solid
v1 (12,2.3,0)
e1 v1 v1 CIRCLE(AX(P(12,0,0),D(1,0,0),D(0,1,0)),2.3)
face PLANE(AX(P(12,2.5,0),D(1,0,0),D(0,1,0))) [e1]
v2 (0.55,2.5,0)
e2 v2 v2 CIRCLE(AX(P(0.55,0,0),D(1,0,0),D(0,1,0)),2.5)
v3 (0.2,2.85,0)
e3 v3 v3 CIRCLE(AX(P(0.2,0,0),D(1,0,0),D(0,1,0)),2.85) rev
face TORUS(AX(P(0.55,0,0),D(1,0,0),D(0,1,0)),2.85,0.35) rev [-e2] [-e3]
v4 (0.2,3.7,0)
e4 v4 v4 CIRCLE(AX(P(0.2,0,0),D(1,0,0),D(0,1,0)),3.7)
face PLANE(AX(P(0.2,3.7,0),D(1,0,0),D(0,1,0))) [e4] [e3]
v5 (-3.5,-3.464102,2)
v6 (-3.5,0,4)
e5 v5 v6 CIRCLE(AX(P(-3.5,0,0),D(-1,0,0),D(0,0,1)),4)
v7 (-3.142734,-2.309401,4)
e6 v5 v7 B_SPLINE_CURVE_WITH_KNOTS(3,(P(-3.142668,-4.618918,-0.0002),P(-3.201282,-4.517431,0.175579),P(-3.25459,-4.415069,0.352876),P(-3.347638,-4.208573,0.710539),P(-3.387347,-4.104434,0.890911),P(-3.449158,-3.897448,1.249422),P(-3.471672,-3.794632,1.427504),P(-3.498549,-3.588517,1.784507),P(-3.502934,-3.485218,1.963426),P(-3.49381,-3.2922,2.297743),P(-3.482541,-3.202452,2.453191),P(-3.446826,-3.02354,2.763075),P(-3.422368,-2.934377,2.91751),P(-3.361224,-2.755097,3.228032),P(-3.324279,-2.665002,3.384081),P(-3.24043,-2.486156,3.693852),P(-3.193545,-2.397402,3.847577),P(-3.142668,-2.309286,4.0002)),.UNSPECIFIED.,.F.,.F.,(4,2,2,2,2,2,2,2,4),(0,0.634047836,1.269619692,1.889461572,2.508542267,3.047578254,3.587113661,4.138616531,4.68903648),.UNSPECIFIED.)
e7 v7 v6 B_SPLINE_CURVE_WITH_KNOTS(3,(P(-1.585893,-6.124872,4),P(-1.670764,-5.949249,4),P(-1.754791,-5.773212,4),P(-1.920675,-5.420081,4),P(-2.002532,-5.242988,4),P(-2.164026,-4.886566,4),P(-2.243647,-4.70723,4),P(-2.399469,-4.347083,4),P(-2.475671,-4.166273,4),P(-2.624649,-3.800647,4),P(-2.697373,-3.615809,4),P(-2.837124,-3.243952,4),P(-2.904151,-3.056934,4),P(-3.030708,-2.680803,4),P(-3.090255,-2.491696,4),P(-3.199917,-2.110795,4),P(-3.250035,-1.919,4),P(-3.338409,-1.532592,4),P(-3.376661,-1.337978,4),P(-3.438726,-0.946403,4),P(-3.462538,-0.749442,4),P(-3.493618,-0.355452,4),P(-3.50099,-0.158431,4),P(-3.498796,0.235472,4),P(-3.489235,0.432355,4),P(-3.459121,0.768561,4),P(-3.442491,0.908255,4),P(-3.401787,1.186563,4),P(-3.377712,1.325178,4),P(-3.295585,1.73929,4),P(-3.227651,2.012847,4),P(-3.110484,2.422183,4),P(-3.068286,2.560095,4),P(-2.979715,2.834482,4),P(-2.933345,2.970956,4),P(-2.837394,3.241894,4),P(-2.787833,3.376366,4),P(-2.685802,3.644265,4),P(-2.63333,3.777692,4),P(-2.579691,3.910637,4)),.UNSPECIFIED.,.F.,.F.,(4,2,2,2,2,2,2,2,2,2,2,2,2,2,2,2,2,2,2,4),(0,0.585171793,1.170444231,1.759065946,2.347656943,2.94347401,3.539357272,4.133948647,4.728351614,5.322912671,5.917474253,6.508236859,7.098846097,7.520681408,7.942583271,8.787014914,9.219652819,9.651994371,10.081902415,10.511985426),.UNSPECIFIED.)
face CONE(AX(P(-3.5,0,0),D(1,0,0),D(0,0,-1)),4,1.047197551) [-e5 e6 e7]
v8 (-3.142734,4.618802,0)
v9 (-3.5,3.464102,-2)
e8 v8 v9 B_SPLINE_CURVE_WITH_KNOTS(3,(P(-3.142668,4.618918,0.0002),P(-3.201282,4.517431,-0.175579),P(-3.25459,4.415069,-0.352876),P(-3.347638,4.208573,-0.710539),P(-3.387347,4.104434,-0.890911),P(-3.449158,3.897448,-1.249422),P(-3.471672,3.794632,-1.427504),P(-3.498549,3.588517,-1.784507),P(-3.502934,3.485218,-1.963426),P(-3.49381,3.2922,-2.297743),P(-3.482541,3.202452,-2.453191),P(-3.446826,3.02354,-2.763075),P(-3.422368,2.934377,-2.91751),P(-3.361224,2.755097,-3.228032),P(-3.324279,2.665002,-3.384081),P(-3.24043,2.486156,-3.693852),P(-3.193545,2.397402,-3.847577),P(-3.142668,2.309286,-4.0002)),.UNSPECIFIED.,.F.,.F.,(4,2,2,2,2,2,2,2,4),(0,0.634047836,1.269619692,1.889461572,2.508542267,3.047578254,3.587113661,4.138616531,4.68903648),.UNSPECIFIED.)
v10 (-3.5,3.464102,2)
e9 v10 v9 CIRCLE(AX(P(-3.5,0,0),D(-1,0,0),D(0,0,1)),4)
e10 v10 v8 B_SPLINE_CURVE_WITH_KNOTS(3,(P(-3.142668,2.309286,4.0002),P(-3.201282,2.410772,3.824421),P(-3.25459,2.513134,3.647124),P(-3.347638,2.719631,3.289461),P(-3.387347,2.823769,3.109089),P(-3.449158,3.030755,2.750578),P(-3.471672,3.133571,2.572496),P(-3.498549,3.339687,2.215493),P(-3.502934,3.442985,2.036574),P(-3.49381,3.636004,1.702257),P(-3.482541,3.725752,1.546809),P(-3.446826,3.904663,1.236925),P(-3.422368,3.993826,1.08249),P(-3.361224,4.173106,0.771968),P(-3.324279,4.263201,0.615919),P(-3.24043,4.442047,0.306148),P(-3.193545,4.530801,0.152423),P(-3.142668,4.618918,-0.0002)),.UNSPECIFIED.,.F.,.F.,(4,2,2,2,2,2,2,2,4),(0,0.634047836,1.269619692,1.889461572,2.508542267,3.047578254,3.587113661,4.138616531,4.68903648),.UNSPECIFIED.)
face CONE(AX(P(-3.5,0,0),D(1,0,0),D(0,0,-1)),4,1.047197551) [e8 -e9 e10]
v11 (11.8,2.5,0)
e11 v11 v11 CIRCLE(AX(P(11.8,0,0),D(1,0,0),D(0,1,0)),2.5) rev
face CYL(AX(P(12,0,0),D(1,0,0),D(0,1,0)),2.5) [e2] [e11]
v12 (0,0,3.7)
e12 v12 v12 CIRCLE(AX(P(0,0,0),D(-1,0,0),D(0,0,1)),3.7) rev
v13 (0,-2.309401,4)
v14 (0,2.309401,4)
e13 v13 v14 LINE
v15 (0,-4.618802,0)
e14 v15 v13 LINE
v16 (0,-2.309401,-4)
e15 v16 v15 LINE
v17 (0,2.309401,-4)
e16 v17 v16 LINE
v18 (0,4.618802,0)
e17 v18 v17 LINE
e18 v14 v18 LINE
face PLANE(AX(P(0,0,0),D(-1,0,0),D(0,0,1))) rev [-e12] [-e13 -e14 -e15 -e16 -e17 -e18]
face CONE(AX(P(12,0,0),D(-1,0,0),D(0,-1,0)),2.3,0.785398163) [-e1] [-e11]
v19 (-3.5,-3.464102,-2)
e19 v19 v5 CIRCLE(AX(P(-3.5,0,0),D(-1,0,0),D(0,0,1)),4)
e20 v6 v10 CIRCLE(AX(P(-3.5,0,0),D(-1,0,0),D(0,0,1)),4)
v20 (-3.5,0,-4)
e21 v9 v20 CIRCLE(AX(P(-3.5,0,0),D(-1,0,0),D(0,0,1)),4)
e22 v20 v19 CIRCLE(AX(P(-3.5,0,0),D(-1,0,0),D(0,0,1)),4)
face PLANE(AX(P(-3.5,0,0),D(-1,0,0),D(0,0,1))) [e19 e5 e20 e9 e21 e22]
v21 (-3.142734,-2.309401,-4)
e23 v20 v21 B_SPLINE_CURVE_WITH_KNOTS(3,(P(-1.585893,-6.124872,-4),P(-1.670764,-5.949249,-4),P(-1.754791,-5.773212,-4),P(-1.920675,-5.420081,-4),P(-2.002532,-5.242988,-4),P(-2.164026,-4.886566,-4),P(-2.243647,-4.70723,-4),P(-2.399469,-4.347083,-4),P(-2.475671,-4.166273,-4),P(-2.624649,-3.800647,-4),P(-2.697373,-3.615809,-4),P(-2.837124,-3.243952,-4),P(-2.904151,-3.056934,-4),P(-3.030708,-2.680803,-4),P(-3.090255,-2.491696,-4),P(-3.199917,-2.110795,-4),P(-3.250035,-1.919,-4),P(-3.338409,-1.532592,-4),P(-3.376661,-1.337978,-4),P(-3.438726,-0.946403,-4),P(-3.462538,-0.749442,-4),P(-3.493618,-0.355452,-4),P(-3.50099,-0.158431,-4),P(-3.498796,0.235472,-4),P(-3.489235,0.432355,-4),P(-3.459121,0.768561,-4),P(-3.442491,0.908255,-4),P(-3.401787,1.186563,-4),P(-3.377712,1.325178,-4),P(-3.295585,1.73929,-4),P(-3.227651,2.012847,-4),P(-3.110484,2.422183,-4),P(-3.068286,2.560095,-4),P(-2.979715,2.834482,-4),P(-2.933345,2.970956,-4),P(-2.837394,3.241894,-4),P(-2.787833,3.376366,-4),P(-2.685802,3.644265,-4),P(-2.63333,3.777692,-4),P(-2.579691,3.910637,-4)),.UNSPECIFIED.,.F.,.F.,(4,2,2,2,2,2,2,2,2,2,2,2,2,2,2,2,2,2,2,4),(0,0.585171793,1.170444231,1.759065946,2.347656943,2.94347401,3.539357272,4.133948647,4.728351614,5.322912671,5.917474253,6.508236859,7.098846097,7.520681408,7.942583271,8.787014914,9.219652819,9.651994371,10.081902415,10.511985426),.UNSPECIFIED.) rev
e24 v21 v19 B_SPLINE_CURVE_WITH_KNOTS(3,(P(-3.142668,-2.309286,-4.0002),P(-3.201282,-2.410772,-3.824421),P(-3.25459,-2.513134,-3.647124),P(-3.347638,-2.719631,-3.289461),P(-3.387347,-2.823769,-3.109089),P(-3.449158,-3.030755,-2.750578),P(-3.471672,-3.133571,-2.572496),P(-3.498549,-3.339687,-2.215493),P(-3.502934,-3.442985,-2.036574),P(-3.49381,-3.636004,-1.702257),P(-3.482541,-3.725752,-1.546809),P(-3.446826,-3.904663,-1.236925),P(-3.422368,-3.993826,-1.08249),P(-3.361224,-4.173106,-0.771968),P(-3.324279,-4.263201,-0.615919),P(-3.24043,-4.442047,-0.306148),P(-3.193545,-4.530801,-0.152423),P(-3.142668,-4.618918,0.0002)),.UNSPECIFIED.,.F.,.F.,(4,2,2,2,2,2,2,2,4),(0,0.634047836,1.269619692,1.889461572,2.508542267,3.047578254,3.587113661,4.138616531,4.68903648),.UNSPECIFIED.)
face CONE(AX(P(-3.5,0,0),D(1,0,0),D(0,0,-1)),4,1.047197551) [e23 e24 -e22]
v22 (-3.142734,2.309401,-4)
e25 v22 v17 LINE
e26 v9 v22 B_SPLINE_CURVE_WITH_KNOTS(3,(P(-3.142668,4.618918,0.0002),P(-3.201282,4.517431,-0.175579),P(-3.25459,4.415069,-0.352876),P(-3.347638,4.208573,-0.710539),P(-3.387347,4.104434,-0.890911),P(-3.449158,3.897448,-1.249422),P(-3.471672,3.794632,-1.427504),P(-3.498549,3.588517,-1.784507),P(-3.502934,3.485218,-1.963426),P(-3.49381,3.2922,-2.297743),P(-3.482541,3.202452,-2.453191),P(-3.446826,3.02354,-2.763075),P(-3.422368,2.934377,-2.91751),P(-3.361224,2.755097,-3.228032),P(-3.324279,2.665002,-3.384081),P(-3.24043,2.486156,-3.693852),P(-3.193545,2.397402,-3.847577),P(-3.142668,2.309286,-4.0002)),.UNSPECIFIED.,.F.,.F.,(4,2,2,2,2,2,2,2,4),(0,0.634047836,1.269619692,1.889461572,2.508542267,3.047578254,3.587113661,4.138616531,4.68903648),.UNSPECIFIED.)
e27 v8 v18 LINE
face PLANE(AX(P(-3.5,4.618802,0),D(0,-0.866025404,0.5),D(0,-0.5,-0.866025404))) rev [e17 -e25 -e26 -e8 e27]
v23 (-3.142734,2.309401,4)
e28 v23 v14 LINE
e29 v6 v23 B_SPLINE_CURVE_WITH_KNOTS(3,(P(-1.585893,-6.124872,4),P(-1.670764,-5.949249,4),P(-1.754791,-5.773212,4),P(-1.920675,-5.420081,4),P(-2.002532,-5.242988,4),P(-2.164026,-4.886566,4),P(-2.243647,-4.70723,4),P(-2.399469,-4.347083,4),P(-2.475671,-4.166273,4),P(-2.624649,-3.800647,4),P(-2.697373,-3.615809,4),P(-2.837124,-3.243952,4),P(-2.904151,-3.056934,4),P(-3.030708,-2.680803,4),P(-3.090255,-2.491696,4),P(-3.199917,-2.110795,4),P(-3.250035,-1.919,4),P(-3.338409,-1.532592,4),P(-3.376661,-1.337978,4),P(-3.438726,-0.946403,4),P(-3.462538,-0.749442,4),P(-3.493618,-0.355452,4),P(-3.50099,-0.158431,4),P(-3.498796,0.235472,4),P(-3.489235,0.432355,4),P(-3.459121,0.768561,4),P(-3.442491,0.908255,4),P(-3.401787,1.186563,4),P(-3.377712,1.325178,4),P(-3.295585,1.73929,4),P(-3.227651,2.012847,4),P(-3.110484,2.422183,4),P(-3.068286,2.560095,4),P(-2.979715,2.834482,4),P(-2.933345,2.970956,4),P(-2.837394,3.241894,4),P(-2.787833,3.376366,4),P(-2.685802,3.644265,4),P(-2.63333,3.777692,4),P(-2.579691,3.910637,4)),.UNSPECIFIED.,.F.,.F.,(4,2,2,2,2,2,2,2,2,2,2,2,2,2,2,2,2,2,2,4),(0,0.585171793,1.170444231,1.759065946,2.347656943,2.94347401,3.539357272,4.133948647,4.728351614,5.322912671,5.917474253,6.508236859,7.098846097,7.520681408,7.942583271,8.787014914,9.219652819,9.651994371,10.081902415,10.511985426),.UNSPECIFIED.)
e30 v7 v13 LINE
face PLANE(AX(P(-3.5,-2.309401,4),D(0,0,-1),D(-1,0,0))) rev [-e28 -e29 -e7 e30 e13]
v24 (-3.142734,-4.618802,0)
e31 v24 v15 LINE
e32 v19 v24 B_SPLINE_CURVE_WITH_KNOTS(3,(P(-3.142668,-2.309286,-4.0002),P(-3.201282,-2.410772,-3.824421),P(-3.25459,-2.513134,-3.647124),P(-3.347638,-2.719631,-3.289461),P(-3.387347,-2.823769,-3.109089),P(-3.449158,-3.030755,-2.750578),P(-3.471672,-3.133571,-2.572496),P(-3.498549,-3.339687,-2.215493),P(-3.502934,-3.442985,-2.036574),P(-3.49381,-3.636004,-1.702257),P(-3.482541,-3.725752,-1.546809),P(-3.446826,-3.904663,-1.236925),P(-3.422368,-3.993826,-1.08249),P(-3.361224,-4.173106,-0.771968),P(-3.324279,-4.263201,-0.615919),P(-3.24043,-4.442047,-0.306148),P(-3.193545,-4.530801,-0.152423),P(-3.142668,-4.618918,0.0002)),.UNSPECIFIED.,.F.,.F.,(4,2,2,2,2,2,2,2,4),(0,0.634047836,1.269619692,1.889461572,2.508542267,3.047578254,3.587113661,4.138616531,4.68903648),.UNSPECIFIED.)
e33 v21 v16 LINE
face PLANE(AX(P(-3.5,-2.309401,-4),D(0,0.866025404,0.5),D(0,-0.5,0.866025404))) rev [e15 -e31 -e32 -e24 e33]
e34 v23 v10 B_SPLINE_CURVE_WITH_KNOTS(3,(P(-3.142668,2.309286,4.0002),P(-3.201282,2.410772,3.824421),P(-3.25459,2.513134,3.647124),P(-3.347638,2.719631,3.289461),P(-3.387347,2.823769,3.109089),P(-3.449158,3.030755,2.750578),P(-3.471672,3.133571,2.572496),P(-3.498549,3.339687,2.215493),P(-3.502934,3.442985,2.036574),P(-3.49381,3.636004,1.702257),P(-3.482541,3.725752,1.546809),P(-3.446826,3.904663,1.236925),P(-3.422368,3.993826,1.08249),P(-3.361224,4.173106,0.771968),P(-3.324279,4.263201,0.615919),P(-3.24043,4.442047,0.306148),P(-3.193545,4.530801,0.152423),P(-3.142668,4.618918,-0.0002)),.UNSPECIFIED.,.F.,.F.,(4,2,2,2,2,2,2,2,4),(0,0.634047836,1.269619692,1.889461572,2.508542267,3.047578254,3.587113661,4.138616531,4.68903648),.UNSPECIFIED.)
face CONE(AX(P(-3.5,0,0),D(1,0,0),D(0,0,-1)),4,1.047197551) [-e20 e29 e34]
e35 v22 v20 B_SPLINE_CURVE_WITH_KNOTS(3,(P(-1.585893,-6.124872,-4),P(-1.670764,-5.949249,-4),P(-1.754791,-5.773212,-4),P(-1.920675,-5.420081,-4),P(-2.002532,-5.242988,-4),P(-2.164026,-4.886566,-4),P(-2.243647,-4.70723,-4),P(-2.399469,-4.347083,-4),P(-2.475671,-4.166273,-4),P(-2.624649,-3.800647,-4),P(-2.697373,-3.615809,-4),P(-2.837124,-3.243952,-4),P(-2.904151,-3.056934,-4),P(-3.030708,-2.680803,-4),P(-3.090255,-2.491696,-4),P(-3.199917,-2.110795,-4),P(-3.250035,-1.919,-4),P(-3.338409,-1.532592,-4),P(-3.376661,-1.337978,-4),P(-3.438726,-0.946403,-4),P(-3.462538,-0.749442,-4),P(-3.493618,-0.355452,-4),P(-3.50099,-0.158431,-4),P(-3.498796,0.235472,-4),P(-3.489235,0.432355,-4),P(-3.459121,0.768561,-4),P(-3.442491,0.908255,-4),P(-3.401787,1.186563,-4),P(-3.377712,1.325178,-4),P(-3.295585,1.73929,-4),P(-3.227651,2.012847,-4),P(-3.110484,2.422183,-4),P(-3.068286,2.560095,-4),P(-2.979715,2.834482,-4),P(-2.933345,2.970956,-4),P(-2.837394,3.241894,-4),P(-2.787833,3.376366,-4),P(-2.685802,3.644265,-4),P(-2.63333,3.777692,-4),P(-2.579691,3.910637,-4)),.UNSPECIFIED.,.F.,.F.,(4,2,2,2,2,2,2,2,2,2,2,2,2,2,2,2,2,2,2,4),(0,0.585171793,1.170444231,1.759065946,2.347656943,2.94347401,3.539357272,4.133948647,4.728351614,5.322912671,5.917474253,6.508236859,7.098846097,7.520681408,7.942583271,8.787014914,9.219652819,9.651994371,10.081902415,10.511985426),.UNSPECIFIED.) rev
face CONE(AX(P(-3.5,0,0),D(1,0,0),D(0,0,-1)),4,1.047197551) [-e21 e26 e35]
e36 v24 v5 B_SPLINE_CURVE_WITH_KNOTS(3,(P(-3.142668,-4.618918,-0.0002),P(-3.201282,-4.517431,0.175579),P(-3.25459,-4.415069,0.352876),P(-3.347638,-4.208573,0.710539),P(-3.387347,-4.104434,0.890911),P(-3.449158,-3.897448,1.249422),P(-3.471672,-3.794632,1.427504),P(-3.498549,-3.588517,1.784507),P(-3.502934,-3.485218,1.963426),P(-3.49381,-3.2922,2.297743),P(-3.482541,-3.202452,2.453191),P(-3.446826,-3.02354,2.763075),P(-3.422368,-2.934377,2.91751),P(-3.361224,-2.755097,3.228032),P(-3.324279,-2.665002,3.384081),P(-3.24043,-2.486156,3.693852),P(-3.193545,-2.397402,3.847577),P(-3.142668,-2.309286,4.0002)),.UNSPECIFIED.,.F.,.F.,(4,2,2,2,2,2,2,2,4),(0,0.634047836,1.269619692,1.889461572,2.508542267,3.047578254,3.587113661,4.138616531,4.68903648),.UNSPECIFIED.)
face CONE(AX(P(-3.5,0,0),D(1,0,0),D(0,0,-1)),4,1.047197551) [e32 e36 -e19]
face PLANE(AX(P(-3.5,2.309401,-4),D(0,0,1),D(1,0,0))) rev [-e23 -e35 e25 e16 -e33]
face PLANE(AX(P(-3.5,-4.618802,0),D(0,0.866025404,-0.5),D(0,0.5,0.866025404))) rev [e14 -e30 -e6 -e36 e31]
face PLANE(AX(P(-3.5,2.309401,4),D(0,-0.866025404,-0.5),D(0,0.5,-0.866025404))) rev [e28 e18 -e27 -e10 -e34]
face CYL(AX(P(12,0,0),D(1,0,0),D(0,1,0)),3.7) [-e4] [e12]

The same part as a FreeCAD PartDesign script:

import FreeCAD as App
import Part
import Sketcher
from FreeCAD import Vector
Q = App.Units.Quantity


def edges_at(feature, points):
    """Names of the edges that pass closest to the given points."""
    edges = feature.Shape.Edges
    near = lambda p: min(range(len(edges)), key=lambda i: edges[i].distToShape(Part.Vertex(*p))[0])
    return sorted({f"Edge{near(p) + 1}" for p in points})


def add_polygon(sketch, points):
    """Adds a closed chain of lines whose ends are joined by coincident constraints."""
    first, n = sketch.GeometryCount, len(points)
    for a, b in zip(points, points[1:] + points[:1]):
        sketch.addGeometry(Part.LineSegment(App.Vector(*a, 0), App.Vector(*b, 0)), False)
    for i in range(n):
        sketch.addConstraint(Sketcher.Constraint("Coincident", first + i, 2, first + (i + 1) % n, 1))

doc = App.newDocument("Part")
body = doc.addObject("PartDesign::Body", "Body")

sketch1 = body.newObject("Sketcher::SketchObject", "Sketch")
sketch1.AttachmentSupport = (doc.getObject("XY_Plane"), [""])
sketch1.MapMode = "FlatFace"
add_polygon(sketch1, [(12, 2.5), (0.2, 2.5), (0.2, 3.7), (0, 3.7), (0, 0), (12, 0)])
sketch1.addConstraint(Sketcher.Constraint("Horizontal", 0))
sketch1.addConstraint(Sketcher.Constraint("Vertical", 1))
sketch1.addConstraint(Sketcher.Constraint("Horizontal", 2))
sketch1.addConstraint(Sketcher.Constraint("Vertical", 3))
sketch1.addConstraint(Sketcher.Constraint("Horizontal", 4))
sketch1.addConstraint(Sketcher.Constraint("Vertical", 5))
sketch1.addConstraint(Sketcher.Constraint("Coincident", 3, 2, -1, 1))
sketch1.addConstraint(Sketcher.Constraint("DistanceX", 4, 1, 4, 2, Q("12 mm")))
sketch1.addConstraint(Sketcher.Constraint("DistanceX", 0, 2, 0, 1, Q("11.8 mm")))
sketch1.addConstraint(Sketcher.Constraint("DistanceY", 1, 1, 1, 2, Q("1.2 mm")))
sketch1.addConstraint(Sketcher.Constraint("DistanceY", 3, 2, 3, 1, Q("3.7 mm")))
revolution = body.newObject("PartDesign::Revolution", "Revolution")
revolution.Profile = sketch1
revolution.ReferenceAxis = (sketch1, ["H_Axis"])
revolution.Angle = 360

sketch2 = body.newObject("Sketcher::SketchObject", "Sketch001")
sketch2.AttachmentSupport = (doc.getObject("YZ_Plane"), [""])
sketch2.MapMode = "FlatFace"
add_polygon(sketch2, [(-4.6, 0), (-2.3, 4), (2.3, 4), (4.6, 0), (2.3, -4), (-2.3, -4)])
sketch2.addConstraint(Sketcher.Constraint("Horizontal", 1))
sketch2.addConstraint(Sketcher.Constraint("Horizontal", 4))
sketch2.addConstraint(Sketcher.Constraint("Symmetric", 0, 2, 3, 2, -1, 1))
sketch2.addConstraint(Sketcher.Constraint("Symmetric", 2, 2, 5, 2, -1, 1))
sketch2.addConstraint(Sketcher.Constraint("PointOnObject", 2, 2, -1))
sketch2.addConstraint(Sketcher.Constraint("Parallel", 2, 5))
sketch2.addConstraint(Sketcher.Constraint("Vertical", 1, 2, 3, 2))
sketch2.addConstraint(Sketcher.Constraint("Angle", 0, Q("60 deg")))
sketch2.addConstraint(Sketcher.Constraint("DistanceY", -1, 1, 0, 2, Q("4 mm")))
sketch2.addConstraint(Sketcher.Constraint("DistanceX", 0, 2, -1, 1, Q("2.309401 mm")))
pad1 = body.newObject("PartDesign::Pad", "Pad")
pad1.Profile = sketch2
pad1.Length = 3.5
pad1.Reversed = True

sketch3 = body.newObject("Sketcher::SketchObject", "Sketch002")
sketch3.AttachmentSupport = (doc.getObject("XY_Plane"), [""])
sketch3.MapMode = "FlatFace"
add_polygon(sketch3, [(-3.5, 4), (-3.14, 4.62), (-3.5, 4.62)])
sketch3.addConstraint(Sketcher.Constraint("Horizontal", 1))
sketch3.addConstraint(Sketcher.Constraint("Vertical", 2))
sketch3.addConstraint(Sketcher.Constraint("Angle", 0, Q("60 deg")))
sketch3.addConstraint(Sketcher.Constraint("DistanceY", -1, 1, 2, 2, Q("4 mm")))
sketch3.addConstraint(Sketcher.Constraint("DistanceX", 1, 2, -1, 1, Q("3.5 mm")))
sketch3.addConstraint(Sketcher.Constraint("Distance", 0, Q("0.714531 mm")))
groove = body.newObject("PartDesign::Groove", "Groove")
groove.Profile = sketch3
groove.ReferenceAxis = (sketch3, ["H_Axis"])
groove.Angle = 360
doc.recompute()

chamfer = body.newObject("PartDesign::Chamfer", "Chamfer")
chamfer.Base = (groove, edges_at(groove, [(12, -2.5, 0)]))
chamfer.Size = 0.2
doc.recompute()

fillet = body.newObject("PartDesign::Fillet", "Fillet")
fillet.Base = (chamfer, edges_at(chamfer, [(0.2, -2.5, 0)]))
fillet.Radius = 0.35

doc.recompute()
